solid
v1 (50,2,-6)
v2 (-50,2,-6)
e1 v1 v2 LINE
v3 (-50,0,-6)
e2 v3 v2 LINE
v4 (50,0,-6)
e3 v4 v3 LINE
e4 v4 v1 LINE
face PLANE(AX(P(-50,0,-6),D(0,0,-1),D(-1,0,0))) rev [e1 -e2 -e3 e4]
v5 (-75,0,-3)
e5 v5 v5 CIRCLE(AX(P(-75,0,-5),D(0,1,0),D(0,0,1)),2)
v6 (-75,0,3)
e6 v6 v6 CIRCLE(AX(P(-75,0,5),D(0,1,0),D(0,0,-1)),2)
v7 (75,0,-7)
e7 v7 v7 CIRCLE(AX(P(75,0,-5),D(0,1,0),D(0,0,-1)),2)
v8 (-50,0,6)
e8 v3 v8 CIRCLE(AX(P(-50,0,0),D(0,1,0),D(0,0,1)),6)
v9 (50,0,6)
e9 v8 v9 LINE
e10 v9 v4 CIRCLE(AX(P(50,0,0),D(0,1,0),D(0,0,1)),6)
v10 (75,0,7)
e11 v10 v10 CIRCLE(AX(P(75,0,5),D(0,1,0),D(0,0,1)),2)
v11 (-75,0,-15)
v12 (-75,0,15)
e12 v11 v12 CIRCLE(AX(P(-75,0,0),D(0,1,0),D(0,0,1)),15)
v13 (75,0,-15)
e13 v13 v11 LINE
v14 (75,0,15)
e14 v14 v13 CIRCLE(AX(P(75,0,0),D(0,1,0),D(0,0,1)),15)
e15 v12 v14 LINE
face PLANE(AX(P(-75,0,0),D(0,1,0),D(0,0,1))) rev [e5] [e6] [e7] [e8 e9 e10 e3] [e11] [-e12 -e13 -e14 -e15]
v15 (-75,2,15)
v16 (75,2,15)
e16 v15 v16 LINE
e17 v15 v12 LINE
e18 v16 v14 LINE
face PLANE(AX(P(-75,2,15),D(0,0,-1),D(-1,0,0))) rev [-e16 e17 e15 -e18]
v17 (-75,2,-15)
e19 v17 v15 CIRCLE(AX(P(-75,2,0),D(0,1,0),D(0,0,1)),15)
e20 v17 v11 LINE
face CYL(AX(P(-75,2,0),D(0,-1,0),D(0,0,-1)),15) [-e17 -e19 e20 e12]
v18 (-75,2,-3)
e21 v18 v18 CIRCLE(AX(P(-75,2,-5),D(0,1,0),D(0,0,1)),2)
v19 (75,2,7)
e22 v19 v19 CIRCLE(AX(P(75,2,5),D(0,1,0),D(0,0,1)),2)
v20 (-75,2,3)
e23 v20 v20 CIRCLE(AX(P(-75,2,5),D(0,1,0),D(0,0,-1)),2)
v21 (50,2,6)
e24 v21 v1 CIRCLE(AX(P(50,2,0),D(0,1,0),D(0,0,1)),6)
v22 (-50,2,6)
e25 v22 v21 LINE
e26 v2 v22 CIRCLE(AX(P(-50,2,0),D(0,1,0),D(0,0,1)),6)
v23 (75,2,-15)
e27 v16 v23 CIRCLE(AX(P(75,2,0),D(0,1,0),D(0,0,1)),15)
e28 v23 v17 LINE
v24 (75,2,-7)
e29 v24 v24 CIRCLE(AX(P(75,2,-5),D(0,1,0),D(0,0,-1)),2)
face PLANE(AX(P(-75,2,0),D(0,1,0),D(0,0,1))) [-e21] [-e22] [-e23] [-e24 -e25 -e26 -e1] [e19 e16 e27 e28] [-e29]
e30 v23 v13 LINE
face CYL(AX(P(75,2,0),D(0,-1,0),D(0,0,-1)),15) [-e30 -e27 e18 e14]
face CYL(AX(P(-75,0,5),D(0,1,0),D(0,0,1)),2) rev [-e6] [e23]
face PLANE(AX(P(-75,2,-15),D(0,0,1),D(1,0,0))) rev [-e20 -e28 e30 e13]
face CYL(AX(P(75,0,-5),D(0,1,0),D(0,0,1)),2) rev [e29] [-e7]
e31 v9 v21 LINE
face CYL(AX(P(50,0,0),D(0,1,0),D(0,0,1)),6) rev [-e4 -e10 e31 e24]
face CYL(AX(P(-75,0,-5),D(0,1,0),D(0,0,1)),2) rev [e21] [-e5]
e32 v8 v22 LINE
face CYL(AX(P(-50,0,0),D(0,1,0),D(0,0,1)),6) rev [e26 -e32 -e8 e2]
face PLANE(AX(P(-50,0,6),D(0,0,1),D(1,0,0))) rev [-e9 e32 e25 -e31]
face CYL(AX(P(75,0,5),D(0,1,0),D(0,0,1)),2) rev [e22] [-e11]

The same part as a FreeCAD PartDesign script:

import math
import FreeCAD as App
import Part
import Sketcher
from FreeCAD import Vector

doc = App.newDocument("Part")
body = doc.addObject("PartDesign::Body", "Body")

sketch1 = body.newObject("Sketcher::SketchObject", "Sketch")
sketch1.AttachmentSupport = (doc.getObject("XZ_Plane"), [""])
sketch1.MapMode = "FlatFace"
sketch1.addGeometry(Part.LineSegment(Vector(75, -15, 0), Vector(-75, -15, 0)), False)
sketch1.addGeometry(Part.ArcOfCircle(Part.Circle(Vector(-75, 0, 0), Vector(0, 0, 1), 15), math.radians(90), math.radians(270)), False)
sketch1.addGeometry(Part.LineSegment(Vector(-75, 15, 0), Vector(75, 15, 0)), False)
sketch1.addGeometry(Part.ArcOfCircle(Part.Circle(Vector(75, 0, 0), Vector(0, 0, 1), 15), math.radians(-90), math.radians(90)), False)
sketch1.addConstraint(Sketcher.Constraint("Tangent", 0, 2, 1, 2))
sketch1.addConstraint(Sketcher.Constraint("Tangent", 1, 1, 2, 1))
sketch1.addConstraint(Sketcher.Constraint("Tangent", 2, 2, 3, 2))
sketch1.addConstraint(Sketcher.Constraint("Tangent", 3, 1, 0, 1))
sketch1.addConstraint(Sketcher.Constraint("Horizontal", 0))
sketch1.addConstraint(Sketcher.Constraint("Horizontal", 2))
sketch1.addConstraint(Sketcher.Constraint("Symmetric", 1, 3, 3, 3, -1, 1))
sketch1.addConstraint(Sketcher.Constraint("Radius", 1, 15.0))
sketch1.addConstraint(Sketcher.Constraint("DistanceX", 0, 2, 0, 1, 150.0))
pad1 = body.newObject("PartDesign::Pad", "Pad")
pad1.Profile = sketch1
pad1.Length = 2
pad1.Reversed = True

sketch2 = body.newObject("Sketcher::SketchObject", "Sketch001")
sketch2.AttachmentSupport = (doc.getObject("XZ_Plane"), [""])
sketch2.MapMode = "FlatFace"
sketch2.AttachmentOffset = App.Placement(Vector(0, 0, -2), App.Rotation())
sketch2.addGeometry(Part.Circle(Vector(-75, -5, 0), Vector(0, 0, 1), 2), False)
sketch2.addGeometry(Part.Circle(Vector(-75, 5, 0), Vector(0, 0, 1), 2), False)
sketch2.addGeometry(Part.Circle(Vector(75, 5, 0), Vector(0, 0, 1), 2), False)
sketch2.addGeometry(Part.Circle(Vector(75, -5, 0), Vector(0, 0, 1), 2), False)
sketch2.addGeometry(Part.LineSegment(Vector(50, -6, 0), Vector(-50, -6, 0)), False)
sketch2.addGeometry(Part.ArcOfCircle(Part.Circle(Vector(-50, 0, 0), Vector(0, 0, 1), 6), math.radians(90), math.radians(270)), False)
sketch2.addGeometry(Part.LineSegment(Vector(-50, 6, 0), Vector(50, 6, 0)), False)
sketch2.addGeometry(Part.ArcOfCircle(Part.Circle(Vector(50, 0, 0), Vector(0, 0, 1), 6), math.radians(-90), math.radians(90)), False)
sketch2.addConstraint(Sketcher.Constraint("Tangent", 4, 2, 5, 2))
sketch2.addConstraint(Sketcher.Constraint("Tangent", 5, 1, 6, 1))
sketch2.addConstraint(Sketcher.Constraint("Tangent", 6, 2, 7, 2))
sketch2.addConstraint(Sketcher.Constraint("Tangent", 7, 1, 4, 1))
sketch2.addConstraint(Sketcher.Constraint("Horizontal", 4))
sketch2.addConstraint(Sketcher.Constraint("Horizontal", 6))
sketch2.addConstraint(Sketcher.Constraint("Equal", 0, 1))
sketch2.addConstraint(Sketcher.Constraint("Equal", 1, 2))
sketch2.addConstraint(Sketcher.Constraint("Equal", 2, 3))
sketch2.addConstraint(Sketcher.Constraint("Symmetric", 0, 3, 2, 3, -1, 1))
sketch2.addConstraint(Sketcher.Constraint("Symmetric", 1, 3, 3, 3, -1, 1))
sketch2.addConstraint(Sketcher.Constraint("Symmetric", 5, 3, 7, 3, -1, 1))
sketch2.addConstraint(Sketcher.Constraint("Symmetric", 1, 3, 2, 3, -2))
sketch2.addConstraint(Sketcher.Constraint("Diameter", 0, 4.0))
sketch2.addConstraint(Sketcher.Constraint("Radius", 5, 6.0))
sketch2.addConstraint(Sketcher.Constraint("DistanceX", 4, 2, 4, 1, 100.0))
sketch2.addConstraint(Sketcher.Constraint("DistanceX", 0, 3, -1, 1, 75.0))
sketch2.addConstraint(Sketcher.Constraint("DistanceY", 0, 3, -1, 1, 5.0))
pocket1 = body.newObject("PartDesign::Pocket", "Pocket")
pocket1.Profile = sketch2
pocket1.Length = 2
pocket1.Reversed = True

doc.recompute()
